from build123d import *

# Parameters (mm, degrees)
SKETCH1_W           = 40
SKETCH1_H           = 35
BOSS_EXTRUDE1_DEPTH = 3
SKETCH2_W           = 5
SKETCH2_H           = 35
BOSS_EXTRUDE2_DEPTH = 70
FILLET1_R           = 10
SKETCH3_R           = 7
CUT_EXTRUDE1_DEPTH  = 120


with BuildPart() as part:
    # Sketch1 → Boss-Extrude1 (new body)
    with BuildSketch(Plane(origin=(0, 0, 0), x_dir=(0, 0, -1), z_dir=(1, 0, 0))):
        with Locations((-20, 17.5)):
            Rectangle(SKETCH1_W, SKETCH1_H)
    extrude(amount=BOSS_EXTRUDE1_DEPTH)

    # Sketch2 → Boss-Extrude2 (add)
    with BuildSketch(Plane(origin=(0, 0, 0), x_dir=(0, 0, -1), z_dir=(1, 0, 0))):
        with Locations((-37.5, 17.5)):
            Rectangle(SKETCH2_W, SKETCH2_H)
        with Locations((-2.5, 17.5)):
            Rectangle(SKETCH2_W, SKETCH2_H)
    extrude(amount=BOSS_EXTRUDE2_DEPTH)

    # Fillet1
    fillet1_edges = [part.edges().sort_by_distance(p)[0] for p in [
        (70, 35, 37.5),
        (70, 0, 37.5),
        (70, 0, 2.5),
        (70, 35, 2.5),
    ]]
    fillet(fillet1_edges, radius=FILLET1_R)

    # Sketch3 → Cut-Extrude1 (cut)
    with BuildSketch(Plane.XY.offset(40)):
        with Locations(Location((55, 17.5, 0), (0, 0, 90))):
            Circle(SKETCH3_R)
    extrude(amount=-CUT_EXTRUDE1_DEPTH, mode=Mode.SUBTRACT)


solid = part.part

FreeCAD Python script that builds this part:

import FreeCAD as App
import Part
import Sketcher
from FreeCAD import Vector


def edges_at(feature, points):
    """Names of the edges that pass closest to the given points."""
    edges = feature.Shape.Edges
    near = lambda p: min(range(len(edges)), key=lambda i: edges[i].distToShape(Part.Vertex(*p))[0])
    return sorted({f"Edge{near(p) + 1}" for p in points})

doc = App.newDocument("Part")
body = doc.addObject("PartDesign::Body", "Body")

sketch1 = doc.addObject("Sketcher::SketchObject", "Sketch")
body.addObject(sketch1)
sketch1.AttachmentSupport = (doc.YZ_Plane, [""])
sketch1.MapMode = "FlatFace"
sketch1.addGeometry(Part.LineSegment(Vector(35, 40, 0), Vector(0, 40, 0)), False)
sketch1.addGeometry(Part.LineSegment(Vector(0, 40, 0), Vector(0, 0, 0)), False)
sketch1.addGeometry(Part.LineSegment(Vector(0, 0, 0), Vector(35, 0, 0)), False)
sketch1.addGeometry(Part.LineSegment(Vector(35, 0, 0), Vector(35, 40, 0)), False)
sketch1.addConstraint(Sketcher.Constraint("Coincident", 0, 2, 1, 1))
sketch1.addConstraint(Sketcher.Constraint("Coincident", 1, 2, 2, 1))
sketch1.addConstraint(Sketcher.Constraint("Coincident", 2, 2, 3, 1))
sketch1.addConstraint(Sketcher.Constraint("Coincident", 3, 2, 0, 1))
sketch1.addConstraint(Sketcher.Constraint("Horizontal", 0))
sketch1.addConstraint(Sketcher.Constraint("Vertical", 1))
sketch1.addConstraint(Sketcher.Constraint("Horizontal", 2))
sketch1.addConstraint(Sketcher.Constraint("Vertical", 3))
sketch1.addConstraint(Sketcher.Constraint("Coincident", 1, 2, -1, 1))
sketch1.addConstraint(Sketcher.Constraint("DistanceX", 0, 2, 0, 1, 35.0))
sketch1.addConstraint(Sketcher.Constraint("DistanceY", 1, 2, 1, 1, 40.0))
pad1 = doc.addObject("PartDesign::Pad", "Pad")
body.addObject(pad1)
pad1.Profile = sketch1
pad1.Length = 3

sketch2 = doc.addObject("Sketcher::SketchObject", "Sketch001")
body.addObject(sketch2)
sketch2.AttachmentSupport = (doc.YZ_Plane, [""])
sketch2.MapMode = "FlatFace"
sketch2.addGeometry(Part.LineSegment(Vector(35, 40, 0), Vector(0, 40, 0)), False)
sketch2.addGeometry(Part.LineSegment(Vector(0, 40, 0), Vector(0, 35, 0)), False)
sketch2.addGeometry(Part.LineSegment(Vector(0, 35, 0), Vector(35, 35, 0)), False)
sketch2.addGeometry(Part.LineSegment(Vector(35, 35, 0), Vector(35, 40, 0)), False)
sketch2.addGeometry(Part.LineSegment(Vector(35, 5, 0), Vector(0, 5, 0)), False)
sketch2.addGeometry(Part.LineSegment(Vector(0, 5, 0), Vector(0, 0, 0)), False)
sketch2.addGeometry(Part.LineSegment(Vector(0, 0, 0), Vector(35, 0, 0)), False)
sketch2.addGeometry(Part.LineSegment(Vector(35, 0, 0), Vector(35, 5, 0)), False)
sketch2.addConstraint(Sketcher.Constraint("Coincident", 0, 2, 1, 1))
sketch2.addConstraint(Sketcher.Constraint("Coincident", 1, 2, 2, 1))
sketch2.addConstraint(Sketcher.Constraint("Coincident", 2, 2, 3, 1))
sketch2.addConstraint(Sketcher.Constraint("Coincident", 3, 2, 0, 1))
sketch2.addConstraint(Sketcher.Constraint("Coincident", 4, 2, 5, 1))
sketch2.addConstraint(Sketcher.Constraint("Coincident", 5, 2, 6, 1))
sketch2.addConstraint(Sketcher.Constraint("Coincident", 6, 2, 7, 1))
sketch2.addConstraint(Sketcher.Constraint("Coincident", 7, 2, 4, 1))
sketch2.addConstraint(Sketcher.Constraint("Horizontal", 0))
sketch2.addConstraint(Sketcher.Constraint("Vertical", 1))
sketch2.addConstraint(Sketcher.Constraint("Horizontal", 2))
sketch2.addConstraint(Sketcher.Constraint("Vertical", 3))
sketch2.addConstraint(Sketcher.Constraint("Horizontal", 4))
sketch2.addConstraint(Sketcher.Constraint("Vertical", 5))
sketch2.addConstraint(Sketcher.Constraint("Horizontal", 6))
sketch2.addConstraint(Sketcher.Constraint("Vertical", 7))
sketch2.addConstraint(Sketcher.Constraint("Coincident", 5, 2, -1, 1))
sketch2.addConstraint(Sketcher.Constraint("PointOnObject", 0, 2, -2))
sketch2.addConstraint(Sketcher.Constraint("Vertical", 3, 2, 6, 2))
sketch2.addConstraint(Sketcher.Constraint("Equal", 3, 5))
sketch2.addConstraint(Sketcher.Constraint("DistanceX", 0, 2, 0, 1, 35.0))
sketch2.addConstraint(Sketcher.Constraint("DistanceY", 1, 2, 1, 1, 5.0))
sketch2.addConstraint(Sketcher.Constraint("DistanceY", -1, 1, 0, 2, 40.0))
pad2 = doc.addObject("PartDesign::Pad", "Pad001")
body.addObject(pad2)
pad2.Profile = sketch2
pad2.Length = 70
doc.recompute()

fillet = doc.addObject("PartDesign::Fillet", "Fillet")
body.addObject(fillet)
fillet.Base = (pad2, edges_at(pad2, [
    (70, 35, 37.5),
    (70, 0, 37.5),
    (70, 0, 2.5),
    (70, 35, 2.5),
]))
fillet.Radius = 10

sketch3 = doc.addObject("Sketcher::SketchObject", "Sketch002")
body.addObject(sketch3)
sketch3.AttachmentSupport = (doc.XY_Plane, [""])
sketch3.MapMode = "FlatFace"
sketch3.AttachmentOffset = App.Placement(Vector(0, 0, 40), App.Rotation())
sketch3.addGeometry(Part.Circle(Vector(55, 18, 0), Vector(0, 0, 1), 7), False)
sketch3.addConstraint(Sketcher.Constraint("Diameter", 0, 14.0))
sketch3.addConstraint(Sketcher.Constraint("DistanceX", -1, 1, 0, 3, 55.0))
sketch3.addConstraint(Sketcher.Constraint("DistanceY", -1, 1, 0, 3, 17.5))
pocket1 = doc.addObject("PartDesign::Pocket", "Pocket")
body.addObject(pocket1)
pocket1.Profile = sketch3
pocket1.Length = 120

doc.recompute()
